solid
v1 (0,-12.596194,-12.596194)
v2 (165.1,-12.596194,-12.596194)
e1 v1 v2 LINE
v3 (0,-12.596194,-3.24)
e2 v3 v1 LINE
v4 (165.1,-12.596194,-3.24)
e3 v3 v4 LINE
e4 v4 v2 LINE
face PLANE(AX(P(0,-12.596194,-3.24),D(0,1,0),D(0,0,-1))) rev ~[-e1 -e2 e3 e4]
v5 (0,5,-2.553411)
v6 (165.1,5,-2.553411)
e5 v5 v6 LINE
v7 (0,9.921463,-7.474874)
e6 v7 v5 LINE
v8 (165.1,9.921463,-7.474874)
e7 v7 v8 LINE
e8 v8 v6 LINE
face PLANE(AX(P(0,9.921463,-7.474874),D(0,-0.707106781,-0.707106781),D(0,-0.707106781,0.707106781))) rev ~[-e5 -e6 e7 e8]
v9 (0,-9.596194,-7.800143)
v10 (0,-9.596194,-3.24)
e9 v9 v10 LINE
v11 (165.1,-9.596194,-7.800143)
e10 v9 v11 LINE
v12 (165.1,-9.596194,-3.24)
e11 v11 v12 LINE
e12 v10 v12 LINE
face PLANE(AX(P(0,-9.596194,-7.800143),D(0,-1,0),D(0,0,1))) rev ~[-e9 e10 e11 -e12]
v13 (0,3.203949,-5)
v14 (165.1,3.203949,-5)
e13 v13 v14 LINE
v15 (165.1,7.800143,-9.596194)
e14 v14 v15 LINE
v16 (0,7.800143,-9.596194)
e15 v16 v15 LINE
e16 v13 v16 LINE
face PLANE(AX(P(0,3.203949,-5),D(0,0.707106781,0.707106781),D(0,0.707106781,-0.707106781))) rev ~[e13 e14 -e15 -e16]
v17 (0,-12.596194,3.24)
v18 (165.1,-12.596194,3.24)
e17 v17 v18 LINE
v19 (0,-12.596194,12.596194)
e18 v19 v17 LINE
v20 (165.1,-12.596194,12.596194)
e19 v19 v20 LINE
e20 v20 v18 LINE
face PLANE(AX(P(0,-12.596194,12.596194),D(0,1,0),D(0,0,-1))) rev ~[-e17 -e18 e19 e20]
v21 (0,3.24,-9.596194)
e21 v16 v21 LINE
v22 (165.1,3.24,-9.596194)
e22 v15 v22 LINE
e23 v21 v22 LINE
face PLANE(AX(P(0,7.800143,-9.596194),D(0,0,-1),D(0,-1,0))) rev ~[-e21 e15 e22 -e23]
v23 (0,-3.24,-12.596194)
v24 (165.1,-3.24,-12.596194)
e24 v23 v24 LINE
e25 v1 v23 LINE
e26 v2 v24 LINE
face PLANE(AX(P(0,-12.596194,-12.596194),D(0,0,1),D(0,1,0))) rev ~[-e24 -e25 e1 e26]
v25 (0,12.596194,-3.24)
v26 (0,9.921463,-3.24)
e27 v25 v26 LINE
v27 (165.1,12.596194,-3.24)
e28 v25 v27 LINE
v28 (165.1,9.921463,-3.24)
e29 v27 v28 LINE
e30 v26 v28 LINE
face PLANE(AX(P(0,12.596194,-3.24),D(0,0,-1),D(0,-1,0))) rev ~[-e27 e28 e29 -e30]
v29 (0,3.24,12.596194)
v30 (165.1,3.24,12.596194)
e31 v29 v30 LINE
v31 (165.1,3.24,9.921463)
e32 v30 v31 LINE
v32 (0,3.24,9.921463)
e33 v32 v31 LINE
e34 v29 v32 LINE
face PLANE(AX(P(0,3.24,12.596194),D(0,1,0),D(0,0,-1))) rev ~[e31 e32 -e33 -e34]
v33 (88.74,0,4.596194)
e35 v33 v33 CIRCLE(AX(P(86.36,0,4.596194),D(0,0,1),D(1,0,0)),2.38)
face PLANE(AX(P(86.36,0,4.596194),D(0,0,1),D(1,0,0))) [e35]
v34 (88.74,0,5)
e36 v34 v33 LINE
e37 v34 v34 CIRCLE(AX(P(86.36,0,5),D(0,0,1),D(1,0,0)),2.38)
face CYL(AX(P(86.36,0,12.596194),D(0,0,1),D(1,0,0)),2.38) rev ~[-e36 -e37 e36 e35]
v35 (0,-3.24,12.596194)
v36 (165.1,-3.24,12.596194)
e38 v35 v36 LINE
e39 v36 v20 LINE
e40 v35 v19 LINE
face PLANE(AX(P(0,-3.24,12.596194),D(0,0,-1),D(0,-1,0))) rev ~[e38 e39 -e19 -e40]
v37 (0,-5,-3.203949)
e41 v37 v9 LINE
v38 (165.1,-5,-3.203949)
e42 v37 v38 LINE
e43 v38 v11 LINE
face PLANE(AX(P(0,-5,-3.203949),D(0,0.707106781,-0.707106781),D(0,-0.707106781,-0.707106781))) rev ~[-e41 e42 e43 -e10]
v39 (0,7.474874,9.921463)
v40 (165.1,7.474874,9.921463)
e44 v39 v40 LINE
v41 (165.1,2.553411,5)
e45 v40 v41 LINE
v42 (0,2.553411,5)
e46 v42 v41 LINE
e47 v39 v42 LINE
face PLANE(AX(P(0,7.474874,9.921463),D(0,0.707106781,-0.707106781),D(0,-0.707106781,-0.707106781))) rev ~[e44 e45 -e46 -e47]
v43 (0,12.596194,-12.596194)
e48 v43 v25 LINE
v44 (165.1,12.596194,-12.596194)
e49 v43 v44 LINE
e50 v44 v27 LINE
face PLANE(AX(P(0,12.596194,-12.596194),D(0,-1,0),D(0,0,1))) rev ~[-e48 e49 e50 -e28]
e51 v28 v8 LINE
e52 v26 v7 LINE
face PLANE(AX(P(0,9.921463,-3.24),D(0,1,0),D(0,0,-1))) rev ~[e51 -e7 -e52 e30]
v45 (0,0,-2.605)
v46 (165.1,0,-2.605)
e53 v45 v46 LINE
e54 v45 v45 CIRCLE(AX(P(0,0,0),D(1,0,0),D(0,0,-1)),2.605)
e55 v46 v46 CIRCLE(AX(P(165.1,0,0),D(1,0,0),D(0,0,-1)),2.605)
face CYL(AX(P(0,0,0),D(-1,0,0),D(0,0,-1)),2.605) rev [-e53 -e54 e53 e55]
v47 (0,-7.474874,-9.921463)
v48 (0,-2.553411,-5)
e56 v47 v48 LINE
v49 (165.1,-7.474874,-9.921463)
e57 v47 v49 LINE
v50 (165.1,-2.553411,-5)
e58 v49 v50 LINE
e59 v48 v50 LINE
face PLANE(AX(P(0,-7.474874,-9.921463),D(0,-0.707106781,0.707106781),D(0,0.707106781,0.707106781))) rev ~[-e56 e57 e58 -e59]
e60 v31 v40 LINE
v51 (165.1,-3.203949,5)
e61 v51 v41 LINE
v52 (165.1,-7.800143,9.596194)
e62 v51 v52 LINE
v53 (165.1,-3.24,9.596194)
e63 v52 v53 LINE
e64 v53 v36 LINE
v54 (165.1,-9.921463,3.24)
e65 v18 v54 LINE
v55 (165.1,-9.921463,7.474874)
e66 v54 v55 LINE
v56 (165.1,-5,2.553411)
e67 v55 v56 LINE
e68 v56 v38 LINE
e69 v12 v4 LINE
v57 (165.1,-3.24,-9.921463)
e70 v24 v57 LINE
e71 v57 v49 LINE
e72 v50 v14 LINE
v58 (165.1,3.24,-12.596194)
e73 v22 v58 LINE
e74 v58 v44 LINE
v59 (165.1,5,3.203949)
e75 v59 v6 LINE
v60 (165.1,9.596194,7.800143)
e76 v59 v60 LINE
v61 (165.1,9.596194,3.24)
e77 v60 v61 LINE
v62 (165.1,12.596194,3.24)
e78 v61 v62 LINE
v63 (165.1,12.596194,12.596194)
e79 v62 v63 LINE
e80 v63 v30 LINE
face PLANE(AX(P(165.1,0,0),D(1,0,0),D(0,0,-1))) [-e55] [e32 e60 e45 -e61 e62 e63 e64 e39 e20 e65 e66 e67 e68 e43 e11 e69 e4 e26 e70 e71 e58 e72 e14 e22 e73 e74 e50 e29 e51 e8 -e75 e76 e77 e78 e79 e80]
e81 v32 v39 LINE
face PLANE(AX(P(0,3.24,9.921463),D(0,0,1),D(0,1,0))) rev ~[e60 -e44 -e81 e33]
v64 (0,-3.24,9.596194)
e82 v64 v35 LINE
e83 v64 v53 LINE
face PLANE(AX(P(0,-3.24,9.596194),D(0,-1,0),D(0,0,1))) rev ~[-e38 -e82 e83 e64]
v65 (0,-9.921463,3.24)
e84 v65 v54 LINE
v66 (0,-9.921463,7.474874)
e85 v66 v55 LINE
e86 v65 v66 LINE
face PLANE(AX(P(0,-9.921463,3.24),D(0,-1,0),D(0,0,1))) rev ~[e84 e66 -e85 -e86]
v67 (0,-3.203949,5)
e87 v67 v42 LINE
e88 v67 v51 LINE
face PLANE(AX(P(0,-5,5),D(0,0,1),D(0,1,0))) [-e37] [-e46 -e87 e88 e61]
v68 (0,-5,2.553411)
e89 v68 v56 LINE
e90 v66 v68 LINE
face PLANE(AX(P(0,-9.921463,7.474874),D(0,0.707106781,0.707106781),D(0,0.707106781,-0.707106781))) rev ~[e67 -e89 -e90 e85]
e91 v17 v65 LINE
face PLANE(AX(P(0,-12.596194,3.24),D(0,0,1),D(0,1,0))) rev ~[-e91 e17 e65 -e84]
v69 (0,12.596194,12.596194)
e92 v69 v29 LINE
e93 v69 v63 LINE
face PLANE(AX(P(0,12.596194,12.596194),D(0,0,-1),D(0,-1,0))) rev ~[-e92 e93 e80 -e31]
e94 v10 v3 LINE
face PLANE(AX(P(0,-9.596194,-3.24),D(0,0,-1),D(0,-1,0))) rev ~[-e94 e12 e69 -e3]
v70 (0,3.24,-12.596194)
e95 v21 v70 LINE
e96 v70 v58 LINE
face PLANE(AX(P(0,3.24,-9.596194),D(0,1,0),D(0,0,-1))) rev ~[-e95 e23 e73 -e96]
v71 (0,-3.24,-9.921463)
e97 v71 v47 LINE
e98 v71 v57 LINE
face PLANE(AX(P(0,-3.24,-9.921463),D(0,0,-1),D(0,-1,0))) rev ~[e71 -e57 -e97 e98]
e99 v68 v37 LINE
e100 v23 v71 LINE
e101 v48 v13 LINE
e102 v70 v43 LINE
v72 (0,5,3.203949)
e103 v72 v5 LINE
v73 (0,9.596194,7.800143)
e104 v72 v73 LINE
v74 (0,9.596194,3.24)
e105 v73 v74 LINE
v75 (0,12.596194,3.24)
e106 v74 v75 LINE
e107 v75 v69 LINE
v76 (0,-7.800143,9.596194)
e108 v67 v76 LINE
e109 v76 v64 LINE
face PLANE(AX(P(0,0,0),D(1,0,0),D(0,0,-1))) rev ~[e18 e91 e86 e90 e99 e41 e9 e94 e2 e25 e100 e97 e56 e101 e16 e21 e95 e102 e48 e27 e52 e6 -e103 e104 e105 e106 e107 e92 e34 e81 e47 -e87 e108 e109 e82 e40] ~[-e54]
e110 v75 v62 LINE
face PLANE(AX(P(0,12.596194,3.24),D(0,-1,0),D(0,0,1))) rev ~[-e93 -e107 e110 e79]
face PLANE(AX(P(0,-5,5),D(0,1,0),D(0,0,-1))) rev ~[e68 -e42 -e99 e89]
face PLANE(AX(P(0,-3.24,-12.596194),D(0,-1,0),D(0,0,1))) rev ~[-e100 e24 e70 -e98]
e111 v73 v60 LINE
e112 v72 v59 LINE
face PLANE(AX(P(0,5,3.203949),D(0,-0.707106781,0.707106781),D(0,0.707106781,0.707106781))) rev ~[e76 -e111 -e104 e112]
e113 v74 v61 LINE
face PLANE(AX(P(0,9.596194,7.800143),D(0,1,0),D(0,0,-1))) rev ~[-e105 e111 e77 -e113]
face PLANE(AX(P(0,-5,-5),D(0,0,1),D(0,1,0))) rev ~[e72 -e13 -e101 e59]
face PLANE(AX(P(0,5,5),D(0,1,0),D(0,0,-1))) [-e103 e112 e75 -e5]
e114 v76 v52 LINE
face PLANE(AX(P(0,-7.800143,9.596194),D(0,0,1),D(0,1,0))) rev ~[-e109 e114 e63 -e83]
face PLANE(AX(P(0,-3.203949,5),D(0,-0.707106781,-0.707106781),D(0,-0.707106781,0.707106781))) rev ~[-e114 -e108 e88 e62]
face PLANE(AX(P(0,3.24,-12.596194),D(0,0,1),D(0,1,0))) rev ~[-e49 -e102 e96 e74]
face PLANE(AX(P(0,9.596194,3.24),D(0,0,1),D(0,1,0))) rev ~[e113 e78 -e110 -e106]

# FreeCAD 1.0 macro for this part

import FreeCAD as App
import Part
import Sketcher
Q = App.Units.Quantity


def add_polygon(sketch, points):
    """Adds a closed chain of lines whose ends are joined by coincident constraints."""
    first, n = sketch.GeometryCount, len(points)
    for a, b in zip(points, points[1:] + points[:1]):
        sketch.addGeometry(Part.LineSegment(App.Vector(*a, 0), App.Vector(*b, 0)), False)
    for i in range(n):
        sketch.addConstraint(Sketcher.Constraint("Coincident", first + i, 2, first + (i + 1) % n, 1))

doc = App.newDocument("Part")
body = doc.addObject("PartDesign::Body", "Body")

# Sketch on YZ plane
sketch1 = body.newObject("Sketcher::SketchObject", "Sketch")
sketch1.AttachmentSupport = (doc.getObject("YZ_Plane"), [""])
sketch1.MapMode = "FlatFace"
add_polygon(sketch1, [(5, 5), (-5, 5), (-5, -5), (3.2, -5), (7.8, -9.6), (3.2, -9.6), (3.2, -12.6), (12.6, -12.6), (12.6, -3.2), (9.9, -3.2), (9.9, -7.5), (5, -2.6)])  # lines 0-11
sketch1.addGeometry(Part.Circle(App.Vector(0, 0, 0), App.Vector(0, 0, 1), 2.6), False)  # 12
sketch1.addConstraint(Sketcher.Constraint("Horizontal", 0))
sketch1.addConstraint(Sketcher.Constraint("Vertical", 1))
sketch1.addConstraint(Sketcher.Constraint("Horizontal", 2))
sketch1.addConstraint(Sketcher.Constraint("Horizontal", 4))
sketch1.addConstraint(Sketcher.Constraint("Vertical", 5))
sketch1.addConstraint(Sketcher.Constraint("Horizontal", 6))
sketch1.addConstraint(Sketcher.Constraint("Vertical", 7))
sketch1.addConstraint(Sketcher.Constraint("Horizontal", 8))
sketch1.addConstraint(Sketcher.Constraint("Vertical", 9))
sketch1.addConstraint(Sketcher.Constraint("Vertical", 11))
sketch1.addConstraint(Sketcher.Constraint("Coincident", 12, 3, -1, 1))
sketch1.addConstraint(Sketcher.Constraint("Symmetric", 1, 2, 11, 2, -1, 1))
sketch1.addConstraint(Sketcher.Constraint("Parallel", 3, 10))
sketch1.addConstraint(Sketcher.Constraint("Equal", 0, 1))
sketch1.addConstraint(Sketcher.Constraint("Equal", 6, 7))
sketch1.addConstraint(Sketcher.Constraint("Diameter", 12, 5.21))
sketch1.addConstraint(Sketcher.Constraint("DistanceX", 0, 2, 0, 1, 10.0))
sketch1.addConstraint(Sketcher.Constraint("DistanceY", 5, 2, 5, 1, 3.0))
sketch1.addConstraint(Sketcher.Constraint("Angle", 3, Q("-45 deg")))
sketch1.addConstraint(Sketcher.Constraint("Distance", 3, 6.5))
sketch1.addConstraint(Sketcher.Constraint("Distance", 10, 6.96))
sketch1.addConstraint(Sketcher.Constraint("DistanceX", -1, 1, 4, 2, 3.24))
sketch1.addConstraint(Sketcher.Constraint("DistanceY", 7, 2, -1, 1, 3.24))
sketch1.addConstraint(Sketcher.Constraint("DistanceX", 2, 1, 2, 2, 8.203949))
sketch1.addConstraint(Sketcher.Constraint("DistanceY", 11, 1, 11, 2, 7.553411))
pad1 = body.newObject("PartDesign::Pad", "Pad")
pad1.Profile = sketch1
pad1.Length = 165.1
doc.recompute()

polarpattern = body.newObject("PartDesign::PolarPattern", "PolarPattern")
polarpattern.Originals = [pad1]
polarpattern.Axis = (doc.getObject("X_Axis"), [""])
polarpattern.Angle = 360
polarpattern.Occurrences = 4
body.Tip = polarpattern

# Sketch on XY plane
sketch2 = body.newObject("Sketcher::SketchObject", "Sketch001")
sketch2.AttachmentSupport = (doc.getObject("XY_Plane"), [""])
sketch2.MapMode = "FlatFace"
sketch2.AttachmentOffset = App.Placement(App.Vector(0, 0, 12.596194), App.Rotation())
sketch2.addGeometry(Part.Circle(App.Vector(86.4, 0, 0), App.Vector(0, 0, 1), 2.4), False)
sketch2.addConstraint(Sketcher.Constraint("PointOnObject", 0, 3, -1))
sketch2.addConstraint(Sketcher.Constraint("Diameter", 0, 4.76))
sketch2.addConstraint(Sketcher.Constraint("DistanceX", -1, 1, 0, 3, 86.36))
pocket1 = body.newObject("PartDesign::Pocket", "Pocket")
pocket1.Profile = sketch2
pocket1.Length = 8

doc.recompute()
